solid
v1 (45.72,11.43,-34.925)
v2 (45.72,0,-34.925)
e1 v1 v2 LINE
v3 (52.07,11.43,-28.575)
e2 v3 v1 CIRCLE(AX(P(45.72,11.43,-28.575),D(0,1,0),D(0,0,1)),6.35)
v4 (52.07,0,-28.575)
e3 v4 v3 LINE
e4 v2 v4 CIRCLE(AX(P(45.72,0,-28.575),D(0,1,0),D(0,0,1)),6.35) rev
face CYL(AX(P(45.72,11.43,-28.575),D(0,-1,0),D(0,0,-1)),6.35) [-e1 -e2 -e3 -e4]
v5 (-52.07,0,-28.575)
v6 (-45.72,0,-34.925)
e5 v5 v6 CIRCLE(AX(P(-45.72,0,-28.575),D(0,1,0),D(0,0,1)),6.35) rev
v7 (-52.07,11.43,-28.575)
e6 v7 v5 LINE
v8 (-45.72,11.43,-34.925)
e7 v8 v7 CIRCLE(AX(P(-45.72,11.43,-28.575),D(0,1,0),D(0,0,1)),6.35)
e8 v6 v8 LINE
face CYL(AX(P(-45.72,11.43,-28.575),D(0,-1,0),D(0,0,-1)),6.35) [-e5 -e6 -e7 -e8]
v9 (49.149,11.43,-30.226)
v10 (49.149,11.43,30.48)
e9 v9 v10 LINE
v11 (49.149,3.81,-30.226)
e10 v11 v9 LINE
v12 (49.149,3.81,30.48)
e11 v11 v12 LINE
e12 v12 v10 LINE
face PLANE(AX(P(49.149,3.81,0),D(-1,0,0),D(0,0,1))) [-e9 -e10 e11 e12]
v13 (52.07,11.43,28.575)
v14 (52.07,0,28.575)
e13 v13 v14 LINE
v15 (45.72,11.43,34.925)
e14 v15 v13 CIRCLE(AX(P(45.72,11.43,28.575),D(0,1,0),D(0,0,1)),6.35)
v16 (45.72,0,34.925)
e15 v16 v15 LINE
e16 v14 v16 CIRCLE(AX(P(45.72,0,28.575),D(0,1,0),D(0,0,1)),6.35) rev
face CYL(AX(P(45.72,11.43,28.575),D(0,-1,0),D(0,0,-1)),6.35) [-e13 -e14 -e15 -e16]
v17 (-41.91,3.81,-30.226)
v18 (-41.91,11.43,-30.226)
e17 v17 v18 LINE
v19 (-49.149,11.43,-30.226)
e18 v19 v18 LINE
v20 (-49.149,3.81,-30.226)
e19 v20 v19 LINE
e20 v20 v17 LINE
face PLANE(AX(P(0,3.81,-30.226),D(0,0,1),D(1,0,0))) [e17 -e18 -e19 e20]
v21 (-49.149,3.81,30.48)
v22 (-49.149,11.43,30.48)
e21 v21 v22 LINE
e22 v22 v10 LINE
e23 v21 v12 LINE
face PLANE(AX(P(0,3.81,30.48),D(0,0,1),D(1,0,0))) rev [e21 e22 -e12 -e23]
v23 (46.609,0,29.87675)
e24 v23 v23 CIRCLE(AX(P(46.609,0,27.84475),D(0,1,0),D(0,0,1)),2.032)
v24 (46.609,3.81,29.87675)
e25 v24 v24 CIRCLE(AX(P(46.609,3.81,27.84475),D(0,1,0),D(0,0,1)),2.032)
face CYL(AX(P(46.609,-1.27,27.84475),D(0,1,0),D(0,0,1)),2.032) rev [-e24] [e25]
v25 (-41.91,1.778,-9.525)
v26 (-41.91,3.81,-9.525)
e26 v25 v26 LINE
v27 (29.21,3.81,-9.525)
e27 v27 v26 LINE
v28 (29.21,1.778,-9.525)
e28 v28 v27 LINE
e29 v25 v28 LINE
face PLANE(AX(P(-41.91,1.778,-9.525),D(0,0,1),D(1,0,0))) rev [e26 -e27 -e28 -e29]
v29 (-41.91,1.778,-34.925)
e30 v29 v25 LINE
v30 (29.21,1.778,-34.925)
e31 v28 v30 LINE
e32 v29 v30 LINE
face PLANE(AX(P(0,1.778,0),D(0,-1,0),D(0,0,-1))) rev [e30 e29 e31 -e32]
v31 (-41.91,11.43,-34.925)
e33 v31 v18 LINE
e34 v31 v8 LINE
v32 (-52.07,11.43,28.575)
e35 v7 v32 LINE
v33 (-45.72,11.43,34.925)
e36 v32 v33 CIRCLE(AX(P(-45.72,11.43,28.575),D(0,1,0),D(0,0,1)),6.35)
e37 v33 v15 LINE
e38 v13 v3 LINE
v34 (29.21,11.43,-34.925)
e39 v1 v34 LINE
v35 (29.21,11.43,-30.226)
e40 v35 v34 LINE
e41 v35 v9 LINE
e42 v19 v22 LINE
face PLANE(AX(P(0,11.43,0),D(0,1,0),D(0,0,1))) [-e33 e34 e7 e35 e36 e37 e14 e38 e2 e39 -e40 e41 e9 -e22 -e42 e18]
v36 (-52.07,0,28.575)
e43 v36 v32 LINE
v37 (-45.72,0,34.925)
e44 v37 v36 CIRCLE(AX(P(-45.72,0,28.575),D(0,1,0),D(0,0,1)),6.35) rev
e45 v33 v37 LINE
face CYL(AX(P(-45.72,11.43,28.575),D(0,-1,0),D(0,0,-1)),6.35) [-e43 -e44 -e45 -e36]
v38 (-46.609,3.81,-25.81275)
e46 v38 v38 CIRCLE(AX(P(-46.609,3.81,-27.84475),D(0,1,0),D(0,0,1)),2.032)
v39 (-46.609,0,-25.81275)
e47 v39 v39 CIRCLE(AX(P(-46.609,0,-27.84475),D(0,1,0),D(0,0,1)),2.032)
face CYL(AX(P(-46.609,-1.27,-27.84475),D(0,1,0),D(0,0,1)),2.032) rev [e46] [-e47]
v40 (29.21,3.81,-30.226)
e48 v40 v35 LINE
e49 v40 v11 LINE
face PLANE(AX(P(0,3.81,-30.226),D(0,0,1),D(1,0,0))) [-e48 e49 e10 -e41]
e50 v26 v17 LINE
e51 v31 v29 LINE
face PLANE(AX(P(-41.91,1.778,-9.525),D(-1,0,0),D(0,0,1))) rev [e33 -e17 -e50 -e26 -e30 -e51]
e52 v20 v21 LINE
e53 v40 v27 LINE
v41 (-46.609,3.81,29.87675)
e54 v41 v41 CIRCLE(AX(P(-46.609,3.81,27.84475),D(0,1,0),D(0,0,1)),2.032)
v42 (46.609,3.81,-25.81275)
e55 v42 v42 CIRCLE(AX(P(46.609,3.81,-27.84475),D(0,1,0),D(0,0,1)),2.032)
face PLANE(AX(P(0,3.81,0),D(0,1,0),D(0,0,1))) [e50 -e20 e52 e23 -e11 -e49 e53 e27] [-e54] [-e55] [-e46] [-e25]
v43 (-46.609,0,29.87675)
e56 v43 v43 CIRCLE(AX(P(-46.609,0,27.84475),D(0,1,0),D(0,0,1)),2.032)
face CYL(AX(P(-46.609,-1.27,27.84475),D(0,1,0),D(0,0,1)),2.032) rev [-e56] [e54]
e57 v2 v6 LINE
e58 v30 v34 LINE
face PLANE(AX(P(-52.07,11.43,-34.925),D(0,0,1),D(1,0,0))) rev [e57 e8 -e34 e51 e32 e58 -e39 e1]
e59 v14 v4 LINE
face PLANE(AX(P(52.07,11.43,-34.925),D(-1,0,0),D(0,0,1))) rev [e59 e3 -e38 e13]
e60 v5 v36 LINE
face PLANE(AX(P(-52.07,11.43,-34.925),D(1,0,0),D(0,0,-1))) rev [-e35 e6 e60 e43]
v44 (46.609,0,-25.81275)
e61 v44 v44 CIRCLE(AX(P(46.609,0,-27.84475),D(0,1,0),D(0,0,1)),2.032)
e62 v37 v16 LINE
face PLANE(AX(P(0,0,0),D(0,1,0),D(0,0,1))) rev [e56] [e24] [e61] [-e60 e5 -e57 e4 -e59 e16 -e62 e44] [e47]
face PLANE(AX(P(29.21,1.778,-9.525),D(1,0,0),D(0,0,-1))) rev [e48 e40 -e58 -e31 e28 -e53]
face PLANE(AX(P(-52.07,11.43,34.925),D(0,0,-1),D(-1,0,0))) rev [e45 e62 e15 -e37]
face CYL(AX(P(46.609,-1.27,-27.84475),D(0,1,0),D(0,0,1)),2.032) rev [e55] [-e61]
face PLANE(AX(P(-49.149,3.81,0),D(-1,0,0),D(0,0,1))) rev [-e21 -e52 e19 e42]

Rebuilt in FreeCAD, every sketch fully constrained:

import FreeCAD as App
import Part
import Sketcher
from FreeCAD import Vector
Q = App.Units.Quantity


def edges_at(feature, points):
    """Names of the edges that pass closest to the given points."""
    edges = feature.Shape.Edges
    near = lambda p: min(range(len(edges)), key=lambda i: edges[i].distToShape(Part.Vertex(*p))[0])
    return sorted({f"Edge{near(p) + 1}" for p in points})

doc = App.newDocument("Part")
body = doc.addObject("PartDesign::Body", "Body")

sketch1 = body.newObject("Sketcher::SketchObject", "Sketch")
sketch1.AttachmentSupport = (doc.getObject("XZ_Plane"), [""])
sketch1.MapMode = "FlatFace"
sketch1.addGeometry([
    Part.LineSegment(Vector(-52, -35, 0), Vector(-52, 35, 0)),
    Part.LineSegment(Vector(-52, 35, 0), Vector(52, 35, 0)),
    Part.LineSegment(Vector(52, 35, 0), Vector(52, -35, 0)),
    Part.LineSegment(Vector(52, -35, 0), Vector(-52, -35, 0)),
], False)
sketch1.addConstraint([
    Sketcher.Constraint("Coincident", 0, 2, 1, 1),
    Sketcher.Constraint("Coincident", 1, 2, 2, 1),
    Sketcher.Constraint("Coincident", 2, 2, 3, 1),
    Sketcher.Constraint("Coincident", 3, 2, 0, 1),
    Sketcher.Constraint("Vertical", 0),
    Sketcher.Constraint("Horizontal", 1),
    Sketcher.Constraint("Vertical", 2),
    Sketcher.Constraint("Horizontal", 3),
    Sketcher.Constraint("Symmetric", 0, 2, 2, 2, -1, 1),
    Sketcher.Constraint("DistanceX", 1, 1, 1, 2, Q("4.1 in")),
    Sketcher.Constraint("DistanceY", 0, 1, 0, 2, Q("2.75 in")),
])
pad1 = body.newObject("PartDesign::Pad", "Pad")
pad1.Profile = sketch1
pad1.Length = Q("0.45 in")
pad1.Reversed = True

sketch2 = body.newObject("Sketcher::SketchObject", "Sketch001")
sketch2.AttachmentSupport = (doc.getObject("XZ_Plane"), [""])
sketch2.MapMode = "FlatFace"
sketch2.AttachmentOffset = App.Placement(Vector(0, 0, -0.45 * 25.4), App.Rotation())
sketch2.addGeometry([
    Part.LineSegment(Vector(-42, -38, 0), Vector(-42, -10, 0)),
    Part.LineSegment(Vector(-42, -10, 0), Vector(29, -10, 0)),
    Part.LineSegment(Vector(29, -10, 0), Vector(29, -38, 0)),
    Part.LineSegment(Vector(29, -38, 0), Vector(-42, -38, 0)),
], False)
sketch2.addConstraint([
    Sketcher.Constraint("Coincident", 0, 2, 1, 1),
    Sketcher.Constraint("Coincident", 1, 2, 2, 1),
    Sketcher.Constraint("Coincident", 2, 2, 3, 1),
    Sketcher.Constraint("Coincident", 3, 2, 0, 1),
    Sketcher.Constraint("Vertical", 0),
    Sketcher.Constraint("Horizontal", 1),
    Sketcher.Constraint("Vertical", 2),
    Sketcher.Constraint("Horizontal", 3),
    Sketcher.Constraint("DistanceX", 1, 1, 1, 2, Q("2.8 in")),
    Sketcher.Constraint("DistanceX", 0, 2, -1, 1, Q("1.65 in")),
    Sketcher.Constraint("DistanceY", 0, 2, -1, 1, Q("0.375 in")),
    Sketcher.Constraint("DistanceY", 0, 1, 0, 2, Q("28.179594 mm")),
])
pocket1 = body.newObject("PartDesign::Pocket", "Pocket")
pocket1.Profile = sketch2
pocket1.Length = Q("0.38 in")
pocket1.Reversed = True

sketch3 = body.newObject("Sketcher::SketchObject", "Sketch002")
sketch3.AttachmentSupport = (doc.getObject("XZ_Plane"), [""])
sketch3.MapMode = "FlatFace"
sketch3.AttachmentOffset = App.Placement(Vector(0, 0, -0.45 * 25.4), App.Rotation())
sketch3.addGeometry([
    Part.LineSegment(Vector(49, -30, 0), Vector(-49, -30, 0)),
    Part.LineSegment(Vector(-49, -30, 0), Vector(-49, 30, 0)),
    Part.LineSegment(Vector(-49, 30, 0), Vector(49, 30, 0)),
    Part.LineSegment(Vector(49, 30, 0), Vector(49, -30, 0)),
], False)
sketch3.addConstraint([
    Sketcher.Constraint("Coincident", 0, 2, 1, 1),
    Sketcher.Constraint("Coincident", 1, 2, 2, 1),
    Sketcher.Constraint("Coincident", 2, 2, 3, 1),
    Sketcher.Constraint("Coincident", 3, 2, 0, 1),
    Sketcher.Constraint("Horizontal", 0),
    Sketcher.Constraint("Vertical", 1),
    Sketcher.Constraint("Horizontal", 2),
    Sketcher.Constraint("Vertical", 3),
    Sketcher.Constraint("DistanceX", 0, 2, 0, 1, Q("3.87 in")),
    Sketcher.Constraint("DistanceY", 1, 1, 1, 2, Q("2.39 in")),
    Sketcher.Constraint("DistanceY", -1, 1, 1, 2, Q("1.2 in")),
    Sketcher.Constraint("DistanceX", 0, 2, -1, 1, Q("1.935 in")),
])
pocket2 = body.newObject("PartDesign::Pocket", "Pocket001")
pocket2.Profile = sketch3
pocket2.Length = Q("0.3 in")
pocket2.Reversed = True

sketch4 = body.newObject("Sketcher::SketchObject", "Sketch003")
sketch4.AttachmentSupport = (doc.getObject("XZ_Plane"), [""])
sketch4.MapMode = "FlatFace"
sketch4.AttachmentOffset = App.Placement(Vector(0, 0, -0.45 * 25.4), App.Rotation())
sketch4.addGeometry([
    Part.Circle(Vector(-46.6, -27.8, 0), Vector(0, 0, 1), 2),
    Part.Circle(Vector(46.6, -27.8, 0), Vector(0, 0, 1), 2),
    Part.Circle(Vector(46.6, 27.8, 0), Vector(0, 0, 1), 2),
    Part.Circle(Vector(-46.6, 27.8, 0), Vector(0, 0, 1), 2),
], False)
sketch4.addConstraint([
    Sketcher.Constraint("Equal", 0, 1),
    Sketcher.Constraint("Equal", 1, 2),
    Sketcher.Constraint("Equal", 2, 3),
    Sketcher.Constraint("Symmetric", 0, 3, 2, 3, -1, 1),
    Sketcher.Constraint("Symmetric", 1, 3, 3, 3, -1, 1),
    Sketcher.Constraint("Symmetric", 0, 3, 1, 3, -2),
    Sketcher.Constraint("Diameter", 0, Q("0.16 in")),
    Sketcher.Constraint("DistanceX", 0, 3, 1, 3, Q("3.67 in")),
    Sketcher.Constraint("DistanceY", 1, 3, 2, 3, Q("2.1925 in")),
])
pocket3 = body.newObject("PartDesign::Pocket", "Pocket002")
pocket3.Profile = sketch4
pocket3.Length = Q("0.5 in")
pocket3.Reversed = True
doc.recompute()

fillet = body.newObject("PartDesign::Fillet", "Fillet")
fillet.Base = (pocket3, edges_at(pocket3, [
    (-52.07, 5.715, -34.925),
    (52.07, 5.715, -34.925),
    (52.07, 5.715, 34.925),
    (-52.07, 5.715, 34.925),
]))
fillet.Radius = Q("0.25 in")

doc.recompute()
